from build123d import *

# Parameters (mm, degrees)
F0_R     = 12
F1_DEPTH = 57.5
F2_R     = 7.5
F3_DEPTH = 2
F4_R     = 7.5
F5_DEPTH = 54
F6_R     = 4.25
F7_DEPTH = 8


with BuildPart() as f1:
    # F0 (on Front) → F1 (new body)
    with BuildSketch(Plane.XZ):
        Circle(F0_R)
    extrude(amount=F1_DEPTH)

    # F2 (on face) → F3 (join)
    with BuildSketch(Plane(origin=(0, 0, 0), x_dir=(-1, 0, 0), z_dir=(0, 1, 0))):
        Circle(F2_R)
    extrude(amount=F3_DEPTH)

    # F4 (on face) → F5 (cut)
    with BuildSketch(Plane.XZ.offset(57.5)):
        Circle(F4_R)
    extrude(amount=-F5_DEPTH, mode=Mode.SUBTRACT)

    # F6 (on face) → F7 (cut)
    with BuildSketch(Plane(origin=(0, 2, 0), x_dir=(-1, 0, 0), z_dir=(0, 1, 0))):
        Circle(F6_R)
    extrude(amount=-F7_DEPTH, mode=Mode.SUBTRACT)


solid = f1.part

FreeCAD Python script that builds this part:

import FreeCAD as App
import Part
import Sketcher

doc = App.newDocument("Part")
params = doc.addObject("Spreadsheet::Sheet", "Params")
for row, (alias, value) in enumerate([
    ("sketch1_diameter", "24 mm"),
    ("pad1_length", "57.5 mm"),
    ("sketch2_diameter", "15 mm"),
    ("pad2_length", "2 mm"),
    ("sketch3_diameter", "15 mm"),
    ("pocket1_length", "54 mm"),
    ("sketch4_diameter", "8.5 mm"),
    ("pocket2_length", "8 mm"),
], start=1):
    params.set(f"A{row}", alias)
    params.set(f"B{row}", "=" + value)
    params.setAlias(f"B{row}", alias)

body = doc.addObject("PartDesign::Body", "Body")

sketch1 = doc.addObject("Sketcher::SketchObject", "Sketch")
body.addObject(sketch1)
sketch1.AttachmentSupport = (doc.XZ_Plane, [""])
sketch1.MapMode = "FlatFace"
sketch1.addGeometry(Part.Circle(App.Vector(0, 0, 0), App.Vector(0, 0, 1), 12), False)
sketch1.addConstraint(Sketcher.Constraint("Coincident", 0, 3, -1, 1))
sketch1.addConstraint(Sketcher.Constraint("Diameter", 0, 24.0))
sketch1.setExpression("Constraints[1]", "Params.sketch1_diameter")
pad1 = doc.addObject("PartDesign::Pad", "Pad")
body.addObject(pad1)
pad1.Profile = sketch1
pad1.setExpression("Length", "Params.pad1_length")

sketch2 = doc.addObject("Sketcher::SketchObject", "Sketch001")
body.addObject(sketch2)
sketch2.AttachmentSupport = (doc.XZ_Plane, [""])
sketch2.MapMode = "FlatFace"
sketch2.addGeometry(Part.Circle(App.Vector(0, 0, 0), App.Vector(0, 0, 1), 8), False)
sketch2.addConstraint(Sketcher.Constraint("Coincident", 0, 3, -1, 1))
sketch2.addConstraint(Sketcher.Constraint("Diameter", 0, 15.0))
sketch2.setExpression("Constraints[1]", "Params.sketch2_diameter")
pad2 = doc.addObject("PartDesign::Pad", "Pad001")
body.addObject(pad2)
pad2.Profile = sketch2
pad2.setExpression("Length", "Params.pad2_length")
pad2.Reversed = True

sketch3 = doc.addObject("Sketcher::SketchObject", "Sketch002")
body.addObject(sketch3)
sketch3.AttachmentSupport = (doc.XZ_Plane, [""])
sketch3.MapMode = "FlatFace"
sketch3.AttachmentOffset = App.Placement(App.Vector(0, 0, 57.5), App.Rotation())
sketch3.addGeometry(Part.Circle(App.Vector(0, 0, 0), App.Vector(0, 0, 1), 8), False)
sketch3.addConstraint(Sketcher.Constraint("Coincident", 0, 3, -1, 1))
sketch3.addConstraint(Sketcher.Constraint("Diameter", 0, 15.0))
sketch3.setExpression("Constraints[1]", "Params.sketch3_diameter")
pocket1 = doc.addObject("PartDesign::Pocket", "Pocket")
body.addObject(pocket1)
pocket1.Profile = sketch3
pocket1.setExpression("Length", "Params.pocket1_length")

sketch4 = doc.addObject("Sketcher::SketchObject", "Sketch003")
body.addObject(sketch4)
sketch4.AttachmentSupport = (doc.XZ_Plane, [""])
sketch4.MapMode = "FlatFace"
sketch4.AttachmentOffset = App.Placement(App.Vector(0, 0, -2), App.Rotation())
sketch4.addGeometry(Part.Circle(App.Vector(0, 0, 0), App.Vector(0, 0, 1), 4.2), False)
sketch4.addConstraint(Sketcher.Constraint("Coincident", 0, 3, -1, 1))
sketch4.addConstraint(Sketcher.Constraint("Diameter", 0, 8.5))
sketch4.setExpression("Constraints[1]", "Params.sketch4_diameter")
pocket2 = doc.addObject("PartDesign::Pocket", "Pocket001")
body.addObject(pocket2)
pocket2.Profile = sketch4
pocket2.setExpression("Length", "Params.pocket2_length")
pocket2.Reversed = True

doc.recompute()
